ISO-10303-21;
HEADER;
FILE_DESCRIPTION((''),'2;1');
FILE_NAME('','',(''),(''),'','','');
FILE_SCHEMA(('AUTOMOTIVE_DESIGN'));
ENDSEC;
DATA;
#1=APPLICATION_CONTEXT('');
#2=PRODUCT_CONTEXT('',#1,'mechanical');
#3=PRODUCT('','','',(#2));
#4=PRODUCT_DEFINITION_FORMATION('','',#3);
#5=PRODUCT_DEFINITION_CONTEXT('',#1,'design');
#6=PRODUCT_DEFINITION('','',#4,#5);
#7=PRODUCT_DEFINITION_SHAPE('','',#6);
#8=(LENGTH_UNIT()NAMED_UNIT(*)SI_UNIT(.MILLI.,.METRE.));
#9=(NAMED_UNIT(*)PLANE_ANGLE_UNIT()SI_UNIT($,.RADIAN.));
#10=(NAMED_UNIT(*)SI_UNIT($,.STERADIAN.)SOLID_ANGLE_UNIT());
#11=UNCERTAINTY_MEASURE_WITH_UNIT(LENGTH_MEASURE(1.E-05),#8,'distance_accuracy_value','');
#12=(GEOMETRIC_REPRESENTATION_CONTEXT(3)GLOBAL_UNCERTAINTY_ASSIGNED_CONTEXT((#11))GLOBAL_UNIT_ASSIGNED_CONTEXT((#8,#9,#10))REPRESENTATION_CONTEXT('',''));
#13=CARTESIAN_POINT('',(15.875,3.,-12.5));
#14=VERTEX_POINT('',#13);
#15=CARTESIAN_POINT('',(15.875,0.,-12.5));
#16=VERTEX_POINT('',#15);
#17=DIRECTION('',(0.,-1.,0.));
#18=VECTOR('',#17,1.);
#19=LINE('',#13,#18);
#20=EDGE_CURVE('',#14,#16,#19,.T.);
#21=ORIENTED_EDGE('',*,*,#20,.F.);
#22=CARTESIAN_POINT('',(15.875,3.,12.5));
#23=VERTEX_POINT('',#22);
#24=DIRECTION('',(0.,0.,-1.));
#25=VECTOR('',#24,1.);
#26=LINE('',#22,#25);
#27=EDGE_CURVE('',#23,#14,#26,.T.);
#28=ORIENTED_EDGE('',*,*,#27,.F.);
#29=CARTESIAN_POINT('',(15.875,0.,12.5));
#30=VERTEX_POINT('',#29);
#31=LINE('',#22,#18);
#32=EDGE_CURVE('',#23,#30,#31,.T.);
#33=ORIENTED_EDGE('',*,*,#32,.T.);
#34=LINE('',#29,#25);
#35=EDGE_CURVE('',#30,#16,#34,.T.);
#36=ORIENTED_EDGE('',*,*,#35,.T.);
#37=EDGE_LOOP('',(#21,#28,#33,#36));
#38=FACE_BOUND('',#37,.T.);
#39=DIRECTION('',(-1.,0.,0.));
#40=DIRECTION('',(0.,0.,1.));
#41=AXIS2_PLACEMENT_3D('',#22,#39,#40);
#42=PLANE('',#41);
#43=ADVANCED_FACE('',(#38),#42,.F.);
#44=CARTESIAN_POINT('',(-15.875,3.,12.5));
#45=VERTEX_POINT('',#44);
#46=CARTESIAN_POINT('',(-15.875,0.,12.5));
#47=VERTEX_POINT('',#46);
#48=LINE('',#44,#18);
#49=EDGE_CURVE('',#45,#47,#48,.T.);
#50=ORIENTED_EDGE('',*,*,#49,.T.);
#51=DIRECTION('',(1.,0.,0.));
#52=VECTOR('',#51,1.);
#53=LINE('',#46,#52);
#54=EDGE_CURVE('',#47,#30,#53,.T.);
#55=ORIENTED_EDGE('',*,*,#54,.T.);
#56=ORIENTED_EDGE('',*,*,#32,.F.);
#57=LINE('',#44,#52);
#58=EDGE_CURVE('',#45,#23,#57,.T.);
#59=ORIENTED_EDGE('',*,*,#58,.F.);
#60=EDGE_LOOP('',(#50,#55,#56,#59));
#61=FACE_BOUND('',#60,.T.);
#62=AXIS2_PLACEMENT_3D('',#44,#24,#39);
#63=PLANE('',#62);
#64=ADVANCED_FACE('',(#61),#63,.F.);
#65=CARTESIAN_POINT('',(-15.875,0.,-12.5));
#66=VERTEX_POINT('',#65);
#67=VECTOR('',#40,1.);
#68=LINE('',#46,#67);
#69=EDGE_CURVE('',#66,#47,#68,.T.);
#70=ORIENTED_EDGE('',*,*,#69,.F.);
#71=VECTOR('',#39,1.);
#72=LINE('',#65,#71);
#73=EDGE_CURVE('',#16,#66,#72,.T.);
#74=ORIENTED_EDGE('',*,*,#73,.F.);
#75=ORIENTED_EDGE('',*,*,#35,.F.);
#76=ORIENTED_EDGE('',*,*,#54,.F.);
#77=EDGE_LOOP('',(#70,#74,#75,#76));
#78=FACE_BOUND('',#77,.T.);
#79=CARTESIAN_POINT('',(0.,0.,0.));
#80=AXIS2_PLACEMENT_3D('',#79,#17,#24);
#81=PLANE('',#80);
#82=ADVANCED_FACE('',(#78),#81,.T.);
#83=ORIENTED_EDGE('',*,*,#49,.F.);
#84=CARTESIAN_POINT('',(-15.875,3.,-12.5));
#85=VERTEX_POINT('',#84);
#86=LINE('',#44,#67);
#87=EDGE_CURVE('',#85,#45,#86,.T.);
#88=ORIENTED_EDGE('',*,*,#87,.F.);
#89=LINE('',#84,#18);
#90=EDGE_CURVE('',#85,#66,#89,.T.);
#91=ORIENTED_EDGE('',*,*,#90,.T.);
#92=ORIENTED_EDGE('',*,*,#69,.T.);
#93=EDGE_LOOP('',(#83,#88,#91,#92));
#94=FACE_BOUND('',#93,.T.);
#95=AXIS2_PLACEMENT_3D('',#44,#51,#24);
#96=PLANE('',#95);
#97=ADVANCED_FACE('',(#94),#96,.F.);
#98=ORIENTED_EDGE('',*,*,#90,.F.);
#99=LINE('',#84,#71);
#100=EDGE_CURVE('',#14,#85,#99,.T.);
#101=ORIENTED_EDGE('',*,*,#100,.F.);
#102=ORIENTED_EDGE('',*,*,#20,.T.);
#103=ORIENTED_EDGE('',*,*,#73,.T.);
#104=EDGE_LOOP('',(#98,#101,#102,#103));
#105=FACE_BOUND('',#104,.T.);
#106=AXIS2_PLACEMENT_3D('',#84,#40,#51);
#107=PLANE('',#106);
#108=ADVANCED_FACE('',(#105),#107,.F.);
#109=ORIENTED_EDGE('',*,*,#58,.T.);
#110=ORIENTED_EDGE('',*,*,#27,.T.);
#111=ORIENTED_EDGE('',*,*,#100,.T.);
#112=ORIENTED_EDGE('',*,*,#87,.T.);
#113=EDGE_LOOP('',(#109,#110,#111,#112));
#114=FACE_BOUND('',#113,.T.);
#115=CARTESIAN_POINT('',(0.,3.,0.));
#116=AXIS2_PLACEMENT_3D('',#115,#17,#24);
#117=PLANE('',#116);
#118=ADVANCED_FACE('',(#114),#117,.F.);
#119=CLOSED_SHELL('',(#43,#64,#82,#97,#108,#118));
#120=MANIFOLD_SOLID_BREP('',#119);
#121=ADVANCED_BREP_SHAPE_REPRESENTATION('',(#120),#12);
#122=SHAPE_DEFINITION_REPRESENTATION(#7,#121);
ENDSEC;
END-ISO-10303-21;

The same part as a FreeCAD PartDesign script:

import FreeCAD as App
import Part
import Sketcher
from FreeCAD import Vector
Q = App.Units.Quantity


def add_polygon(sketch, points):
    """Adds a closed chain of lines whose ends are joined by coincident constraints."""
    first, n = sketch.GeometryCount, len(points)
    for a, b in zip(points, points[1:] + points[:1]):
        sketch.addGeometry(Part.LineSegment(App.Vector(*a, 0), App.Vector(*b, 0)), False)
    for i in range(n):
        sketch.addConstraint(Sketcher.Constraint("Coincident", first + i, 2, first + (i + 1) % n, 1))

doc = App.newDocument("Part")
body = doc.addObject("PartDesign::Body", "Body")

# Sketch on XZ plane
sketch1 = body.newObject("Sketcher::SketchObject", "Sketch")
sketch1.AttachmentSupport = (doc.getObject("XZ_Plane"), [""])
sketch1.MapMode = "FlatFace"
add_polygon(sketch1, [(-16, -12), (-16, 12), (16, 12), (16, -12)])  # lines 0-3
sketch1.addConstraint([
    Sketcher.Constraint("Vertical", 0),
    Sketcher.Constraint("Horizontal", 1),
    Sketcher.Constraint("Vertical", 2),
    Sketcher.Constraint("Horizontal", 3),
    Sketcher.Constraint("Symmetric", 0, 2, 2, 2, -1, 1),
    Sketcher.Constraint("DistanceY", 0, 1, 0, 2, Q("25 mm")),
    Sketcher.Constraint("DistanceX", 1, 1, 1, 2, Q("31.75 mm")),
])
pad1 = body.newObject("PartDesign::Pad", "Pad")
pad1.Profile = sketch1
pad1.Length = 3
pad1.Reversed = True

doc.recompute()
